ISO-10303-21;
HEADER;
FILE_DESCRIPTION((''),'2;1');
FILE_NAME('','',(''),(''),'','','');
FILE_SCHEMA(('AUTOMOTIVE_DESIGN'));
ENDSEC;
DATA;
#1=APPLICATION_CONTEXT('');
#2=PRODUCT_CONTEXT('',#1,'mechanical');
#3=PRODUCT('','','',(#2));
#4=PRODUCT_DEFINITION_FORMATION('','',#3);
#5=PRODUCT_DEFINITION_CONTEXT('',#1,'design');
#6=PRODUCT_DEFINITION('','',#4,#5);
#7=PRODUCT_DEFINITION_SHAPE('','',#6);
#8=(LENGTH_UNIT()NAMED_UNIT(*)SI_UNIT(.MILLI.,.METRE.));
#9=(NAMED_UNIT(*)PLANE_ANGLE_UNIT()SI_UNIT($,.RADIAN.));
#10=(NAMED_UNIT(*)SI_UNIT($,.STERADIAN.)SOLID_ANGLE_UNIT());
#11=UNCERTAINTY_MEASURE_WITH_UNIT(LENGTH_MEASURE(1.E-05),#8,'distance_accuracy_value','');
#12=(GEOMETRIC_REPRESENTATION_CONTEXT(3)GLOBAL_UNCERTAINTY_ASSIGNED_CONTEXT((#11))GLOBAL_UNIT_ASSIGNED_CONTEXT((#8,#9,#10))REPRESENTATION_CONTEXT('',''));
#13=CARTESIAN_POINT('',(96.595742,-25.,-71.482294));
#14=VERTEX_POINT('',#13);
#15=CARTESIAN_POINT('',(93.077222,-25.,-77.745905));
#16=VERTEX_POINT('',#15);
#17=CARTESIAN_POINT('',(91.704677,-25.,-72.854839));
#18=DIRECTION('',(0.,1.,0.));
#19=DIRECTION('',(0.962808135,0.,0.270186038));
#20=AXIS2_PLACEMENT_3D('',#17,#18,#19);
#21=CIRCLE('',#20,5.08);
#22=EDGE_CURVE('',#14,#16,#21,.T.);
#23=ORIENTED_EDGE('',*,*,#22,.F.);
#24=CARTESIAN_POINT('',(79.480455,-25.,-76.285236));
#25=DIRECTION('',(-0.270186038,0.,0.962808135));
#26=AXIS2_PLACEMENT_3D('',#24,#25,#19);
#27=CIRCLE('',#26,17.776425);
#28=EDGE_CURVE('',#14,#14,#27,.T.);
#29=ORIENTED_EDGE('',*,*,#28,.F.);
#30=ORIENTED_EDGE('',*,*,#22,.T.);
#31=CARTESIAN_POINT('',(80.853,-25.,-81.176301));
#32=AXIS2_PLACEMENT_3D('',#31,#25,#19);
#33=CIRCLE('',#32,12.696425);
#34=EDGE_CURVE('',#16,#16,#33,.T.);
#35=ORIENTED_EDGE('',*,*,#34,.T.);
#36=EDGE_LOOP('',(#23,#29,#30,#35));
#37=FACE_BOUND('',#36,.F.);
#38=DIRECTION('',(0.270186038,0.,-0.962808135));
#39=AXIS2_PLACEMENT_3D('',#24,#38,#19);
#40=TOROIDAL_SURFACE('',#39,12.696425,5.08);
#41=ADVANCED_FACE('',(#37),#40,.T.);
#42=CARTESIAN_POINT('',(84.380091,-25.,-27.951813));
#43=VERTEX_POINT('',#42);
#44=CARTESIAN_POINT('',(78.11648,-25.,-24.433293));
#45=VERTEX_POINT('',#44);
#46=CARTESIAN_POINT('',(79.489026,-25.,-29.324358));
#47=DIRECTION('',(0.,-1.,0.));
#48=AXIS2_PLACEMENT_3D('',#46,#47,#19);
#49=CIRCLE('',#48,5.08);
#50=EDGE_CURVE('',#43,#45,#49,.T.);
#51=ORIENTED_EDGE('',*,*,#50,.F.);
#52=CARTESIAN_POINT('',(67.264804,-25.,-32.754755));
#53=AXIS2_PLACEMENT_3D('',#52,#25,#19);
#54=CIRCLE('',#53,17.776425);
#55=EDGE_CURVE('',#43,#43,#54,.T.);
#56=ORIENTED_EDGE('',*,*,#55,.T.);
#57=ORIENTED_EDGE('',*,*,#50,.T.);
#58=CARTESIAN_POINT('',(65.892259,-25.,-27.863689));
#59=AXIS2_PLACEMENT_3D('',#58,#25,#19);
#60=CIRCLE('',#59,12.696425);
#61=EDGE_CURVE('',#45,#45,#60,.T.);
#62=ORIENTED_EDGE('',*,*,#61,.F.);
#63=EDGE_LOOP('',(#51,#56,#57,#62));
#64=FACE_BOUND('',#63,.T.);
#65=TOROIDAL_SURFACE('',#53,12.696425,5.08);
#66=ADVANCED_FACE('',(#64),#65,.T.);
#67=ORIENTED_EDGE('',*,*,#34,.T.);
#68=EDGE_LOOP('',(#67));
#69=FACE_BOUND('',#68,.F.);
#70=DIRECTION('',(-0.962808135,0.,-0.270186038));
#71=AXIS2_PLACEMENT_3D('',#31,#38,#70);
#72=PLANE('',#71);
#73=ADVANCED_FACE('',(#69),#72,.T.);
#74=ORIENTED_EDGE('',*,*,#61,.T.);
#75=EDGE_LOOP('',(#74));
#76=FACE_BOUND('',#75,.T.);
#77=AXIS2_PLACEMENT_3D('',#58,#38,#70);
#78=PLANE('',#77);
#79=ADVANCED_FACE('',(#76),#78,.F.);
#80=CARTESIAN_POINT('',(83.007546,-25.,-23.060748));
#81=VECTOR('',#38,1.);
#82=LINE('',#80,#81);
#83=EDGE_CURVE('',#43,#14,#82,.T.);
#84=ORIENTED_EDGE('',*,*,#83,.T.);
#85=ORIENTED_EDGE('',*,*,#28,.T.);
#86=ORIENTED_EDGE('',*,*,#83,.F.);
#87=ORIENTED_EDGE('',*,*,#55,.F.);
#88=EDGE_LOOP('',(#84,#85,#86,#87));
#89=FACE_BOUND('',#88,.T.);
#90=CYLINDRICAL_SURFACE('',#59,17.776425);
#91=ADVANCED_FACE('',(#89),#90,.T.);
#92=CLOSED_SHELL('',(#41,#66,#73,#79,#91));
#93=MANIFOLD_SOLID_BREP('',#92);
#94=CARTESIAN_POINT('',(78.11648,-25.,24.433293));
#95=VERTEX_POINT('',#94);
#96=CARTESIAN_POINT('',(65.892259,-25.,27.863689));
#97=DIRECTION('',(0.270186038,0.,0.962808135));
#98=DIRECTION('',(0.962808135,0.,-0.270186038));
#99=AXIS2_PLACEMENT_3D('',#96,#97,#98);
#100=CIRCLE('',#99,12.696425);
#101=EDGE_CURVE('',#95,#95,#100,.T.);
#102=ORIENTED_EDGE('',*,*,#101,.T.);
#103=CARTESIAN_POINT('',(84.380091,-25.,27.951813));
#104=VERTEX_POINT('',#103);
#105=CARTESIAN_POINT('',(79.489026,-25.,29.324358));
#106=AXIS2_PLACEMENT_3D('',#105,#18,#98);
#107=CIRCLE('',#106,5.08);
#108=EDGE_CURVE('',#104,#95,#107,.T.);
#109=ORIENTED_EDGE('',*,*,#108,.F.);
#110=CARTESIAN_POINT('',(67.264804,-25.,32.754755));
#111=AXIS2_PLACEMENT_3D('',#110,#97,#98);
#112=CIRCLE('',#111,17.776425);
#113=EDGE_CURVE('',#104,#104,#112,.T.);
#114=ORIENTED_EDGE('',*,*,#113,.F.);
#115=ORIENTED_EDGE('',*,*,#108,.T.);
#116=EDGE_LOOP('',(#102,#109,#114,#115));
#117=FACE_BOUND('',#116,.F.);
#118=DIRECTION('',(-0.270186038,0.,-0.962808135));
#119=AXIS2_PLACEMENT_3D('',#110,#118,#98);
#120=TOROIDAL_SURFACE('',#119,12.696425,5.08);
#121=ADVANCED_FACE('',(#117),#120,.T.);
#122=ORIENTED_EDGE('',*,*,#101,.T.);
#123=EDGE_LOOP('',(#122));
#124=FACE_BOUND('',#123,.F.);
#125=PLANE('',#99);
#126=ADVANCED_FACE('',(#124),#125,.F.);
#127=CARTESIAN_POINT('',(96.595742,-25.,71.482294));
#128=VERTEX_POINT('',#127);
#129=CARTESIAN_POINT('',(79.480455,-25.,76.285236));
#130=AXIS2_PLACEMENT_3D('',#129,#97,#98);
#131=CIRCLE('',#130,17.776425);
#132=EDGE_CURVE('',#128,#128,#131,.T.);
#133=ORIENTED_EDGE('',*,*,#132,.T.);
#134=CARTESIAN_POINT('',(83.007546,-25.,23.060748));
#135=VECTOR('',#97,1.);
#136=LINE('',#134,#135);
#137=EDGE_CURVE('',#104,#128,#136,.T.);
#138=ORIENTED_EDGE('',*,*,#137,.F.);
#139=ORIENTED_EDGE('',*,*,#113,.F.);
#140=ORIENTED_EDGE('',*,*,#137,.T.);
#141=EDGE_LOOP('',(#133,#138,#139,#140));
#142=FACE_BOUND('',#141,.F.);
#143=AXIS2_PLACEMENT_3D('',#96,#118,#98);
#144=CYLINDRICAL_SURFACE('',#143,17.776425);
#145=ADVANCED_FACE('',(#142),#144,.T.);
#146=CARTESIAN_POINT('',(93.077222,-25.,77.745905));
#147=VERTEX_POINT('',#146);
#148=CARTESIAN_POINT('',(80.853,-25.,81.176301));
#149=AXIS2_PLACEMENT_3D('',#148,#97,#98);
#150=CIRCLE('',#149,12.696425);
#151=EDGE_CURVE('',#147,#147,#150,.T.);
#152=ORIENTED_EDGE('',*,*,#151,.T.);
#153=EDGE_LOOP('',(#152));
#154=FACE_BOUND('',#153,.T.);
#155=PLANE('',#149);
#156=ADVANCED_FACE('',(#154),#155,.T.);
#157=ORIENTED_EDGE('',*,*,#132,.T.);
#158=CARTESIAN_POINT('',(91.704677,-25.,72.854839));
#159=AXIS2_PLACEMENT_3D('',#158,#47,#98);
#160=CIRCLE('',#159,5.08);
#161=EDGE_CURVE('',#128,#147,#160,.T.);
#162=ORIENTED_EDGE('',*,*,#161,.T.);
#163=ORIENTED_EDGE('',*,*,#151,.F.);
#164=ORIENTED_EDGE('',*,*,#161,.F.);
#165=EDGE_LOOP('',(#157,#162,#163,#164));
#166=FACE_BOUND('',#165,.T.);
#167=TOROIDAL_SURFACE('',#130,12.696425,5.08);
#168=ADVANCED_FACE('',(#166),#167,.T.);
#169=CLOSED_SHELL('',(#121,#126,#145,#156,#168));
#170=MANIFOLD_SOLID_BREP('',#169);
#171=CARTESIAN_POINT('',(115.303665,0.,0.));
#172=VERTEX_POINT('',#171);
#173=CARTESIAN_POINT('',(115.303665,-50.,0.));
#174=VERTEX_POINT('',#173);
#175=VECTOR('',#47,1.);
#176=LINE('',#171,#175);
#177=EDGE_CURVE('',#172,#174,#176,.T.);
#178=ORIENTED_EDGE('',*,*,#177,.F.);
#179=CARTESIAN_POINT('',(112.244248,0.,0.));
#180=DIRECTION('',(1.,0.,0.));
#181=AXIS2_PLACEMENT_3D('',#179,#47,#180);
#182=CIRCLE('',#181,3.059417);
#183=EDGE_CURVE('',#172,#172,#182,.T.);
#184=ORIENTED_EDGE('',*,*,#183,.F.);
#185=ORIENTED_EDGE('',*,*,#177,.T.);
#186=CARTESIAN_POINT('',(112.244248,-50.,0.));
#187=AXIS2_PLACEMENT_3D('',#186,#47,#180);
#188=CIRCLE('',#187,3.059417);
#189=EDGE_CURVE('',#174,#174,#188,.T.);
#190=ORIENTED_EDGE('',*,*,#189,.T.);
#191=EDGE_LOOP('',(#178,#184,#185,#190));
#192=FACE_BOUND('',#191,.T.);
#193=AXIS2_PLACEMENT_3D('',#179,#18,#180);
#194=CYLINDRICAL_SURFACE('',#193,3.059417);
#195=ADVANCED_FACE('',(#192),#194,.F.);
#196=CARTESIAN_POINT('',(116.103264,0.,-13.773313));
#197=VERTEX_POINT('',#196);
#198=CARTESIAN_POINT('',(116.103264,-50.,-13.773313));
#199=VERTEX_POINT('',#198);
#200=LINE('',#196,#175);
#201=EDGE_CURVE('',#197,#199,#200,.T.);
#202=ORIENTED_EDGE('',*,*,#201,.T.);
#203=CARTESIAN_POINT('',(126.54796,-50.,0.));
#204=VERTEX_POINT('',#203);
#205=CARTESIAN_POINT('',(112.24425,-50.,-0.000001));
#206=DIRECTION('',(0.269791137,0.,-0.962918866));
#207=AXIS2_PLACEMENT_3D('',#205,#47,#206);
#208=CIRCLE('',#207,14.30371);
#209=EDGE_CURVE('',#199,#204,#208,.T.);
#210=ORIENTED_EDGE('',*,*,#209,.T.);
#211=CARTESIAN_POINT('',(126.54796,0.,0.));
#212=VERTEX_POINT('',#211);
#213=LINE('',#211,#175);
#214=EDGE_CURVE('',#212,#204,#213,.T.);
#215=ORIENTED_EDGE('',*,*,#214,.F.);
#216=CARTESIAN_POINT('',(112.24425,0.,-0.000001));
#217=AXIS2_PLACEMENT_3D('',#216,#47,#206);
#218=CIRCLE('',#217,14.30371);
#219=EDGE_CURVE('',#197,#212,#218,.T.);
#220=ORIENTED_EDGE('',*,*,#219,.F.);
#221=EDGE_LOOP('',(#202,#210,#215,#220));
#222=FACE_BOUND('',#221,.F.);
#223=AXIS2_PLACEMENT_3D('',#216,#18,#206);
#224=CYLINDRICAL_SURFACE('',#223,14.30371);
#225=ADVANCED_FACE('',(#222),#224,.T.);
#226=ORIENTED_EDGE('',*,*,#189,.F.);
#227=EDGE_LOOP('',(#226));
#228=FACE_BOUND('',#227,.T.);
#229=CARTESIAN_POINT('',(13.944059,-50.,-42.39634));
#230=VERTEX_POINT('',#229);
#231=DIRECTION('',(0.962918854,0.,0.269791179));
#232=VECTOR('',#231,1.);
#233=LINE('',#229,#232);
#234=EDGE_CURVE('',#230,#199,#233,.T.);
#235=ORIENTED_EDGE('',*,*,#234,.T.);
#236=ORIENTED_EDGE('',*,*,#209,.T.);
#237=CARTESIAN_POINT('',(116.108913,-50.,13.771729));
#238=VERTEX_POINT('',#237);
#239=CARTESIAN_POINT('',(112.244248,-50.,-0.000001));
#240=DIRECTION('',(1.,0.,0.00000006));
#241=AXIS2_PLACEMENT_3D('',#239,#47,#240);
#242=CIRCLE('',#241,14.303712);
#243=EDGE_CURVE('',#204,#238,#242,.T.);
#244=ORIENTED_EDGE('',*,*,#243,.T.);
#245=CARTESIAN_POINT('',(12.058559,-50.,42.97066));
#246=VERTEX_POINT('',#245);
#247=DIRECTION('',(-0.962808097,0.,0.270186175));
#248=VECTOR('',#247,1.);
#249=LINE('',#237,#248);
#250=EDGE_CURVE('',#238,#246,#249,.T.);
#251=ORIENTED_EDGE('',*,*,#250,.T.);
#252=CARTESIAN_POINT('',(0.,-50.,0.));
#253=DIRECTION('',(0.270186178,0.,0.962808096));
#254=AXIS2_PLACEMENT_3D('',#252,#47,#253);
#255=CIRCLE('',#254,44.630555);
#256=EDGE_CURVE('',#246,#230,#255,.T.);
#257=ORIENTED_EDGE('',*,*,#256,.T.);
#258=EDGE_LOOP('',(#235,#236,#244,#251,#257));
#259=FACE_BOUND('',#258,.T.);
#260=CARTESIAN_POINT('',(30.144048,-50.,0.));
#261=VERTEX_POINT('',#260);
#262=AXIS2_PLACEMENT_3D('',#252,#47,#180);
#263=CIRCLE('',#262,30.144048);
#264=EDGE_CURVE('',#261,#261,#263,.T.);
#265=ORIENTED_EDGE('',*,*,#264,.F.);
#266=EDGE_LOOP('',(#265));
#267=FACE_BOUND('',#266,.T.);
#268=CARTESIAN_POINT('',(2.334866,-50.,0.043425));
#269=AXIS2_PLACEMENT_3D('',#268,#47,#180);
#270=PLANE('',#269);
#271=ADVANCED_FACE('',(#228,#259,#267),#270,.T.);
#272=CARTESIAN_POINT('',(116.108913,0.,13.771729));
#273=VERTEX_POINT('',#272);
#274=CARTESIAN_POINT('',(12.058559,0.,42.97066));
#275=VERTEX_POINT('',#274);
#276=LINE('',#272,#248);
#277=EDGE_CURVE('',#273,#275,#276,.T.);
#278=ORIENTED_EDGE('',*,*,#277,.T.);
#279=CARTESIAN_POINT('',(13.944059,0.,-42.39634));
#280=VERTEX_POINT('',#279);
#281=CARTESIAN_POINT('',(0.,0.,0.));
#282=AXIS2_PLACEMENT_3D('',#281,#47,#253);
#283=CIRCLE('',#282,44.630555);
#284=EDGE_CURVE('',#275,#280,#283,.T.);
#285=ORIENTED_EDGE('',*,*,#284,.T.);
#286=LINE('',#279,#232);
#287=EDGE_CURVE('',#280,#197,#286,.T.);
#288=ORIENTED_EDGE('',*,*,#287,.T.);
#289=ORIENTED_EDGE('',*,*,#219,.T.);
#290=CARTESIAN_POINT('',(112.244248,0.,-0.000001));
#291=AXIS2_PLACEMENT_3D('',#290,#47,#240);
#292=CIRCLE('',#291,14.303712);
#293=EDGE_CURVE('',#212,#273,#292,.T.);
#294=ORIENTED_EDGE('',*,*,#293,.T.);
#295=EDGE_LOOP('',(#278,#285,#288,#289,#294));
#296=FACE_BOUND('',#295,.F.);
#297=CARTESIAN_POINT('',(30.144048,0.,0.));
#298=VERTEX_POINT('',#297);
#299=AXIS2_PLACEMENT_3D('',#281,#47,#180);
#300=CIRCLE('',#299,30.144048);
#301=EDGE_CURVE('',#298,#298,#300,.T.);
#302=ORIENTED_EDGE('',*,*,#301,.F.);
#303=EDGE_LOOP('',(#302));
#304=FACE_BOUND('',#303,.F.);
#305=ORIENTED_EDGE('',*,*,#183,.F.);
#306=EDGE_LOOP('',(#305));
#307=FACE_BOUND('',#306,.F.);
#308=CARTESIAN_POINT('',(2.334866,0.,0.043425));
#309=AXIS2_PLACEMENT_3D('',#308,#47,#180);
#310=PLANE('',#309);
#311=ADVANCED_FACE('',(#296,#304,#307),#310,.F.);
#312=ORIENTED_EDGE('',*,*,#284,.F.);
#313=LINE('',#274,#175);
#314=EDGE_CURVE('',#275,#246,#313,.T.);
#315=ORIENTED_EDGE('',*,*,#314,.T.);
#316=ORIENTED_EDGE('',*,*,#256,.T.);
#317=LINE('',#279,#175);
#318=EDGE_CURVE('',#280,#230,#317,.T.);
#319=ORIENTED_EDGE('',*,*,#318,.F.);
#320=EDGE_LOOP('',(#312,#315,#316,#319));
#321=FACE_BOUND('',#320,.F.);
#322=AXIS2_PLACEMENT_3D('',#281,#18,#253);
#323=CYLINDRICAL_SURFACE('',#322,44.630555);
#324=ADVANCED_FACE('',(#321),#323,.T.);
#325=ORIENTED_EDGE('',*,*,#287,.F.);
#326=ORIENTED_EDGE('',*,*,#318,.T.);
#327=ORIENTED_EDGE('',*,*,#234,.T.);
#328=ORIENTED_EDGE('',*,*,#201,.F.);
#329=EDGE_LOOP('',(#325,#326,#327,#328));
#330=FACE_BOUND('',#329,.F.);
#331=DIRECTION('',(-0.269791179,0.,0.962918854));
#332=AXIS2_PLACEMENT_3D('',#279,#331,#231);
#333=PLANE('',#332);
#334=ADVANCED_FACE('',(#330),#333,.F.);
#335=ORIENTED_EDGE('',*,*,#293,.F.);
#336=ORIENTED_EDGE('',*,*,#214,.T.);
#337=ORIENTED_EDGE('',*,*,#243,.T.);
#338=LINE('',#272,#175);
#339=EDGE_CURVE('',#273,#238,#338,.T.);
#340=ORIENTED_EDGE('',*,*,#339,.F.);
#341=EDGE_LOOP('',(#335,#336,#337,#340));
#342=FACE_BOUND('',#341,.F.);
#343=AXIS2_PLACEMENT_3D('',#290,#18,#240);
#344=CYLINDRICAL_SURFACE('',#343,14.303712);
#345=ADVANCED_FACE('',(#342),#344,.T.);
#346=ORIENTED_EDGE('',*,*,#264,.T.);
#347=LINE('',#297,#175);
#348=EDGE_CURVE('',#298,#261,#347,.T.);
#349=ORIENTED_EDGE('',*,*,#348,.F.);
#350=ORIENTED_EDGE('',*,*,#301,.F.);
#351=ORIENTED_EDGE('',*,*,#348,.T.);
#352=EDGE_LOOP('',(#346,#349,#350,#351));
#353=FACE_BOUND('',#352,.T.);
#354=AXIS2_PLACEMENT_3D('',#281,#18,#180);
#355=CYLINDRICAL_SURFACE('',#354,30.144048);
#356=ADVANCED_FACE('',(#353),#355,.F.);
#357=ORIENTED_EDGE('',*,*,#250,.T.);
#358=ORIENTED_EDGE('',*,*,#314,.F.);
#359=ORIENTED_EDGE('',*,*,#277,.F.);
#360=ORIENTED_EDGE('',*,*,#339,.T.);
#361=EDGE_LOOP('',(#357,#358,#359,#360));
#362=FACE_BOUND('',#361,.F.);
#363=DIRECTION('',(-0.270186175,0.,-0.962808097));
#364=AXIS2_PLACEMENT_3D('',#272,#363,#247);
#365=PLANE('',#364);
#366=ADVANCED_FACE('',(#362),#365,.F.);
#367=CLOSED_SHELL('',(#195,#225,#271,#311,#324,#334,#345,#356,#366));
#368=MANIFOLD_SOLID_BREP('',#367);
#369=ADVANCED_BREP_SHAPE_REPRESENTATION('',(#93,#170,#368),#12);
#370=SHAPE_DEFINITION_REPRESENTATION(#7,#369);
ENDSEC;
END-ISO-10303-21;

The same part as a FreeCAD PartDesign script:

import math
import FreeCAD as App
import Part
import Sketcher
Q = App.Units.Quantity


def edges_at(feature, points):
    """Names of the edges that pass closest to the given points."""
    edges = feature.Shape.Edges
    near = lambda p: min(range(len(edges)), key=lambda i: edges[i].distToShape(Part.Vertex(*p))[0])
    return sorted({f"Edge{near(p) + 1}" for p in points})

doc = App.newDocument("Part")
body = doc.addObject("PartDesign::Body", "Body")

# Sketch on XZ plane
sketch1 = body.newObject("Sketcher::SketchObject", "Sketch")
sketch1.AttachmentSupport = (doc.getObject("XZ_Plane"), [""])
sketch1.MapMode = "FlatFace"
sketch1.addGeometry(Part.ArcOfCircle(Part.Circle(App.Vector(0, 0, 0), App.Vector(0, 0, 1), 44.630555), math.radians(74.324654), math.radians(288.205917)), False)
sketch1.addGeometry(Part.LineSegment(App.Vector(13.944059, -42.39634, 0), App.Vector(116.103264, -13.773313, 0)), False)
sketch1.addGeometry(Part.ArcOfCircle(Part.Circle(App.Vector(112.24425, -0.000001, 0), App.Vector(0, 0, 1), 14.30371), math.radians(-74.348161), math.radians(0.000002)), False)
sketch1.addGeometry(Part.ArcOfCircle(Part.Circle(App.Vector(112.244248, -0.000001, 0), App.Vector(0, 0, 1), 14.303712), math.radians(0.000003), math.radians(74.324655)), False)
sketch1.addGeometry(Part.LineSegment(App.Vector(116.108913, 13.771729, 0), App.Vector(12.058559, 42.97066, 0)), False)
sketch1.addGeometry(Part.Circle(App.Vector(0, 0, 0), App.Vector(0, 0, 1), 30.144048), False)
sketch1.addGeometry(Part.Circle(App.Vector(112.244248, 0, 0), App.Vector(0, 0, 1), 3.059417), False)
sketch1.addConstraint(Sketcher.Constraint("Coincident", 0, 2, 1, 1))
sketch1.addConstraint(Sketcher.Constraint("Tangent", 1, 2, 2, 1))
sketch1.addConstraint(Sketcher.Constraint("Tangent", 2, 2, 3, 1))
sketch1.addConstraint(Sketcher.Constraint("Tangent", 3, 2, 4, 1))
sketch1.addConstraint(Sketcher.Constraint("Tangent", 4, 2, 0, 1))
sketch1.addConstraint(Sketcher.Constraint("Coincident", 0, 3, -1, 1))
sketch1.addConstraint(Sketcher.Constraint("Coincident", 5, 3, -1, 1))
sketch1.addConstraint(Sketcher.Constraint("Coincident", 6, 3, 2, 3))
sketch1.addConstraint(Sketcher.Constraint("Equal", 2, 3))
sketch1.addConstraint(Sketcher.Constraint("PointOnObject", 2, 3, -1))
sketch1.addConstraint(Sketcher.Constraint("PointOnObject", 2, 2, -1))
sketch1.addConstraint(Sketcher.Constraint("Radius", 2, Q("14.30371 mm")))
sketch1.addConstraint(Sketcher.Constraint("Distance", 1, Q("4.1769002 in")))
sketch1.addConstraint(Sketcher.Constraint("Diameter", 5, Q("60.288096 mm")))
sketch1.addConstraint(Sketcher.Constraint("Diameter", 6, Q("6.118834 mm")))
sketch1.addConstraint(Sketcher.Constraint("Radius", 0, Q("44.630555 mm")))
sketch1.addConstraint(Sketcher.Constraint("DistanceX", 4, 2, 0, 2, Q("1.8855 mm")))
pad1 = body.newObject("PartDesign::Pad", "Pad")
pad1.Profile = sketch1
pad1.Length = 50
body2 = doc.addObject("PartDesign::Body", "Body001")

# Sketch on an angled plane
sketch2 = body2.newObject("Sketcher::SketchObject", "Sketch001")
sketch2.Placement = App.Placement(App.Vector(12.058559, 0, 42.97066), App.Rotation(App.Vector(0.962808135, 0, -0.270186038), App.Vector(0, 1, 0), App.Vector(0.270186038, 0, 0.962808135), "ZXY"))
sketch2.addGeometry(Part.Circle(App.Vector(55.913217, -25, 0), App.Vector(0, 0, 1), 17.776425), False)
sketch2.addConstraint(Sketcher.Constraint("Diameter", 0, Q("35.55285 mm")))
sketch2.addConstraint(Sketcher.Constraint("DistanceY", 0, 3, -1, 1, Q("25 mm")))
sketch2.addConstraint(Sketcher.Constraint("DistanceX", -1, 1, 0, 3, Q("55.913217 mm")))
pad2 = body2.newObject("PartDesign::Pad", "Pad001")
pad2.Profile = sketch2
pad2.Length = Q("2.18 in")
doc.recompute()

fillet = body2.newObject("PartDesign::Fillet", "Fillet")
fillet.Base = (pad2, edges_at(pad2, [(63.738, -25, 85.979), (48.777, -25, 32.667)]))
fillet.Radius = Q("0.2 in")
body3 = doc.addObject("PartDesign::Body", "Body002")
doc.recompute()

mirroring = doc.addObject("Part::Mirroring", "Mirroring")
mirroring.Source = body2
mirroring.Base = App.Vector(0, 0, 0)
mirroring.Normal = App.Vector(0, 0, 1)
body3.BaseFeature = mirroring
doc.recompute()
mirroring.Visibility = False

doc.recompute()
